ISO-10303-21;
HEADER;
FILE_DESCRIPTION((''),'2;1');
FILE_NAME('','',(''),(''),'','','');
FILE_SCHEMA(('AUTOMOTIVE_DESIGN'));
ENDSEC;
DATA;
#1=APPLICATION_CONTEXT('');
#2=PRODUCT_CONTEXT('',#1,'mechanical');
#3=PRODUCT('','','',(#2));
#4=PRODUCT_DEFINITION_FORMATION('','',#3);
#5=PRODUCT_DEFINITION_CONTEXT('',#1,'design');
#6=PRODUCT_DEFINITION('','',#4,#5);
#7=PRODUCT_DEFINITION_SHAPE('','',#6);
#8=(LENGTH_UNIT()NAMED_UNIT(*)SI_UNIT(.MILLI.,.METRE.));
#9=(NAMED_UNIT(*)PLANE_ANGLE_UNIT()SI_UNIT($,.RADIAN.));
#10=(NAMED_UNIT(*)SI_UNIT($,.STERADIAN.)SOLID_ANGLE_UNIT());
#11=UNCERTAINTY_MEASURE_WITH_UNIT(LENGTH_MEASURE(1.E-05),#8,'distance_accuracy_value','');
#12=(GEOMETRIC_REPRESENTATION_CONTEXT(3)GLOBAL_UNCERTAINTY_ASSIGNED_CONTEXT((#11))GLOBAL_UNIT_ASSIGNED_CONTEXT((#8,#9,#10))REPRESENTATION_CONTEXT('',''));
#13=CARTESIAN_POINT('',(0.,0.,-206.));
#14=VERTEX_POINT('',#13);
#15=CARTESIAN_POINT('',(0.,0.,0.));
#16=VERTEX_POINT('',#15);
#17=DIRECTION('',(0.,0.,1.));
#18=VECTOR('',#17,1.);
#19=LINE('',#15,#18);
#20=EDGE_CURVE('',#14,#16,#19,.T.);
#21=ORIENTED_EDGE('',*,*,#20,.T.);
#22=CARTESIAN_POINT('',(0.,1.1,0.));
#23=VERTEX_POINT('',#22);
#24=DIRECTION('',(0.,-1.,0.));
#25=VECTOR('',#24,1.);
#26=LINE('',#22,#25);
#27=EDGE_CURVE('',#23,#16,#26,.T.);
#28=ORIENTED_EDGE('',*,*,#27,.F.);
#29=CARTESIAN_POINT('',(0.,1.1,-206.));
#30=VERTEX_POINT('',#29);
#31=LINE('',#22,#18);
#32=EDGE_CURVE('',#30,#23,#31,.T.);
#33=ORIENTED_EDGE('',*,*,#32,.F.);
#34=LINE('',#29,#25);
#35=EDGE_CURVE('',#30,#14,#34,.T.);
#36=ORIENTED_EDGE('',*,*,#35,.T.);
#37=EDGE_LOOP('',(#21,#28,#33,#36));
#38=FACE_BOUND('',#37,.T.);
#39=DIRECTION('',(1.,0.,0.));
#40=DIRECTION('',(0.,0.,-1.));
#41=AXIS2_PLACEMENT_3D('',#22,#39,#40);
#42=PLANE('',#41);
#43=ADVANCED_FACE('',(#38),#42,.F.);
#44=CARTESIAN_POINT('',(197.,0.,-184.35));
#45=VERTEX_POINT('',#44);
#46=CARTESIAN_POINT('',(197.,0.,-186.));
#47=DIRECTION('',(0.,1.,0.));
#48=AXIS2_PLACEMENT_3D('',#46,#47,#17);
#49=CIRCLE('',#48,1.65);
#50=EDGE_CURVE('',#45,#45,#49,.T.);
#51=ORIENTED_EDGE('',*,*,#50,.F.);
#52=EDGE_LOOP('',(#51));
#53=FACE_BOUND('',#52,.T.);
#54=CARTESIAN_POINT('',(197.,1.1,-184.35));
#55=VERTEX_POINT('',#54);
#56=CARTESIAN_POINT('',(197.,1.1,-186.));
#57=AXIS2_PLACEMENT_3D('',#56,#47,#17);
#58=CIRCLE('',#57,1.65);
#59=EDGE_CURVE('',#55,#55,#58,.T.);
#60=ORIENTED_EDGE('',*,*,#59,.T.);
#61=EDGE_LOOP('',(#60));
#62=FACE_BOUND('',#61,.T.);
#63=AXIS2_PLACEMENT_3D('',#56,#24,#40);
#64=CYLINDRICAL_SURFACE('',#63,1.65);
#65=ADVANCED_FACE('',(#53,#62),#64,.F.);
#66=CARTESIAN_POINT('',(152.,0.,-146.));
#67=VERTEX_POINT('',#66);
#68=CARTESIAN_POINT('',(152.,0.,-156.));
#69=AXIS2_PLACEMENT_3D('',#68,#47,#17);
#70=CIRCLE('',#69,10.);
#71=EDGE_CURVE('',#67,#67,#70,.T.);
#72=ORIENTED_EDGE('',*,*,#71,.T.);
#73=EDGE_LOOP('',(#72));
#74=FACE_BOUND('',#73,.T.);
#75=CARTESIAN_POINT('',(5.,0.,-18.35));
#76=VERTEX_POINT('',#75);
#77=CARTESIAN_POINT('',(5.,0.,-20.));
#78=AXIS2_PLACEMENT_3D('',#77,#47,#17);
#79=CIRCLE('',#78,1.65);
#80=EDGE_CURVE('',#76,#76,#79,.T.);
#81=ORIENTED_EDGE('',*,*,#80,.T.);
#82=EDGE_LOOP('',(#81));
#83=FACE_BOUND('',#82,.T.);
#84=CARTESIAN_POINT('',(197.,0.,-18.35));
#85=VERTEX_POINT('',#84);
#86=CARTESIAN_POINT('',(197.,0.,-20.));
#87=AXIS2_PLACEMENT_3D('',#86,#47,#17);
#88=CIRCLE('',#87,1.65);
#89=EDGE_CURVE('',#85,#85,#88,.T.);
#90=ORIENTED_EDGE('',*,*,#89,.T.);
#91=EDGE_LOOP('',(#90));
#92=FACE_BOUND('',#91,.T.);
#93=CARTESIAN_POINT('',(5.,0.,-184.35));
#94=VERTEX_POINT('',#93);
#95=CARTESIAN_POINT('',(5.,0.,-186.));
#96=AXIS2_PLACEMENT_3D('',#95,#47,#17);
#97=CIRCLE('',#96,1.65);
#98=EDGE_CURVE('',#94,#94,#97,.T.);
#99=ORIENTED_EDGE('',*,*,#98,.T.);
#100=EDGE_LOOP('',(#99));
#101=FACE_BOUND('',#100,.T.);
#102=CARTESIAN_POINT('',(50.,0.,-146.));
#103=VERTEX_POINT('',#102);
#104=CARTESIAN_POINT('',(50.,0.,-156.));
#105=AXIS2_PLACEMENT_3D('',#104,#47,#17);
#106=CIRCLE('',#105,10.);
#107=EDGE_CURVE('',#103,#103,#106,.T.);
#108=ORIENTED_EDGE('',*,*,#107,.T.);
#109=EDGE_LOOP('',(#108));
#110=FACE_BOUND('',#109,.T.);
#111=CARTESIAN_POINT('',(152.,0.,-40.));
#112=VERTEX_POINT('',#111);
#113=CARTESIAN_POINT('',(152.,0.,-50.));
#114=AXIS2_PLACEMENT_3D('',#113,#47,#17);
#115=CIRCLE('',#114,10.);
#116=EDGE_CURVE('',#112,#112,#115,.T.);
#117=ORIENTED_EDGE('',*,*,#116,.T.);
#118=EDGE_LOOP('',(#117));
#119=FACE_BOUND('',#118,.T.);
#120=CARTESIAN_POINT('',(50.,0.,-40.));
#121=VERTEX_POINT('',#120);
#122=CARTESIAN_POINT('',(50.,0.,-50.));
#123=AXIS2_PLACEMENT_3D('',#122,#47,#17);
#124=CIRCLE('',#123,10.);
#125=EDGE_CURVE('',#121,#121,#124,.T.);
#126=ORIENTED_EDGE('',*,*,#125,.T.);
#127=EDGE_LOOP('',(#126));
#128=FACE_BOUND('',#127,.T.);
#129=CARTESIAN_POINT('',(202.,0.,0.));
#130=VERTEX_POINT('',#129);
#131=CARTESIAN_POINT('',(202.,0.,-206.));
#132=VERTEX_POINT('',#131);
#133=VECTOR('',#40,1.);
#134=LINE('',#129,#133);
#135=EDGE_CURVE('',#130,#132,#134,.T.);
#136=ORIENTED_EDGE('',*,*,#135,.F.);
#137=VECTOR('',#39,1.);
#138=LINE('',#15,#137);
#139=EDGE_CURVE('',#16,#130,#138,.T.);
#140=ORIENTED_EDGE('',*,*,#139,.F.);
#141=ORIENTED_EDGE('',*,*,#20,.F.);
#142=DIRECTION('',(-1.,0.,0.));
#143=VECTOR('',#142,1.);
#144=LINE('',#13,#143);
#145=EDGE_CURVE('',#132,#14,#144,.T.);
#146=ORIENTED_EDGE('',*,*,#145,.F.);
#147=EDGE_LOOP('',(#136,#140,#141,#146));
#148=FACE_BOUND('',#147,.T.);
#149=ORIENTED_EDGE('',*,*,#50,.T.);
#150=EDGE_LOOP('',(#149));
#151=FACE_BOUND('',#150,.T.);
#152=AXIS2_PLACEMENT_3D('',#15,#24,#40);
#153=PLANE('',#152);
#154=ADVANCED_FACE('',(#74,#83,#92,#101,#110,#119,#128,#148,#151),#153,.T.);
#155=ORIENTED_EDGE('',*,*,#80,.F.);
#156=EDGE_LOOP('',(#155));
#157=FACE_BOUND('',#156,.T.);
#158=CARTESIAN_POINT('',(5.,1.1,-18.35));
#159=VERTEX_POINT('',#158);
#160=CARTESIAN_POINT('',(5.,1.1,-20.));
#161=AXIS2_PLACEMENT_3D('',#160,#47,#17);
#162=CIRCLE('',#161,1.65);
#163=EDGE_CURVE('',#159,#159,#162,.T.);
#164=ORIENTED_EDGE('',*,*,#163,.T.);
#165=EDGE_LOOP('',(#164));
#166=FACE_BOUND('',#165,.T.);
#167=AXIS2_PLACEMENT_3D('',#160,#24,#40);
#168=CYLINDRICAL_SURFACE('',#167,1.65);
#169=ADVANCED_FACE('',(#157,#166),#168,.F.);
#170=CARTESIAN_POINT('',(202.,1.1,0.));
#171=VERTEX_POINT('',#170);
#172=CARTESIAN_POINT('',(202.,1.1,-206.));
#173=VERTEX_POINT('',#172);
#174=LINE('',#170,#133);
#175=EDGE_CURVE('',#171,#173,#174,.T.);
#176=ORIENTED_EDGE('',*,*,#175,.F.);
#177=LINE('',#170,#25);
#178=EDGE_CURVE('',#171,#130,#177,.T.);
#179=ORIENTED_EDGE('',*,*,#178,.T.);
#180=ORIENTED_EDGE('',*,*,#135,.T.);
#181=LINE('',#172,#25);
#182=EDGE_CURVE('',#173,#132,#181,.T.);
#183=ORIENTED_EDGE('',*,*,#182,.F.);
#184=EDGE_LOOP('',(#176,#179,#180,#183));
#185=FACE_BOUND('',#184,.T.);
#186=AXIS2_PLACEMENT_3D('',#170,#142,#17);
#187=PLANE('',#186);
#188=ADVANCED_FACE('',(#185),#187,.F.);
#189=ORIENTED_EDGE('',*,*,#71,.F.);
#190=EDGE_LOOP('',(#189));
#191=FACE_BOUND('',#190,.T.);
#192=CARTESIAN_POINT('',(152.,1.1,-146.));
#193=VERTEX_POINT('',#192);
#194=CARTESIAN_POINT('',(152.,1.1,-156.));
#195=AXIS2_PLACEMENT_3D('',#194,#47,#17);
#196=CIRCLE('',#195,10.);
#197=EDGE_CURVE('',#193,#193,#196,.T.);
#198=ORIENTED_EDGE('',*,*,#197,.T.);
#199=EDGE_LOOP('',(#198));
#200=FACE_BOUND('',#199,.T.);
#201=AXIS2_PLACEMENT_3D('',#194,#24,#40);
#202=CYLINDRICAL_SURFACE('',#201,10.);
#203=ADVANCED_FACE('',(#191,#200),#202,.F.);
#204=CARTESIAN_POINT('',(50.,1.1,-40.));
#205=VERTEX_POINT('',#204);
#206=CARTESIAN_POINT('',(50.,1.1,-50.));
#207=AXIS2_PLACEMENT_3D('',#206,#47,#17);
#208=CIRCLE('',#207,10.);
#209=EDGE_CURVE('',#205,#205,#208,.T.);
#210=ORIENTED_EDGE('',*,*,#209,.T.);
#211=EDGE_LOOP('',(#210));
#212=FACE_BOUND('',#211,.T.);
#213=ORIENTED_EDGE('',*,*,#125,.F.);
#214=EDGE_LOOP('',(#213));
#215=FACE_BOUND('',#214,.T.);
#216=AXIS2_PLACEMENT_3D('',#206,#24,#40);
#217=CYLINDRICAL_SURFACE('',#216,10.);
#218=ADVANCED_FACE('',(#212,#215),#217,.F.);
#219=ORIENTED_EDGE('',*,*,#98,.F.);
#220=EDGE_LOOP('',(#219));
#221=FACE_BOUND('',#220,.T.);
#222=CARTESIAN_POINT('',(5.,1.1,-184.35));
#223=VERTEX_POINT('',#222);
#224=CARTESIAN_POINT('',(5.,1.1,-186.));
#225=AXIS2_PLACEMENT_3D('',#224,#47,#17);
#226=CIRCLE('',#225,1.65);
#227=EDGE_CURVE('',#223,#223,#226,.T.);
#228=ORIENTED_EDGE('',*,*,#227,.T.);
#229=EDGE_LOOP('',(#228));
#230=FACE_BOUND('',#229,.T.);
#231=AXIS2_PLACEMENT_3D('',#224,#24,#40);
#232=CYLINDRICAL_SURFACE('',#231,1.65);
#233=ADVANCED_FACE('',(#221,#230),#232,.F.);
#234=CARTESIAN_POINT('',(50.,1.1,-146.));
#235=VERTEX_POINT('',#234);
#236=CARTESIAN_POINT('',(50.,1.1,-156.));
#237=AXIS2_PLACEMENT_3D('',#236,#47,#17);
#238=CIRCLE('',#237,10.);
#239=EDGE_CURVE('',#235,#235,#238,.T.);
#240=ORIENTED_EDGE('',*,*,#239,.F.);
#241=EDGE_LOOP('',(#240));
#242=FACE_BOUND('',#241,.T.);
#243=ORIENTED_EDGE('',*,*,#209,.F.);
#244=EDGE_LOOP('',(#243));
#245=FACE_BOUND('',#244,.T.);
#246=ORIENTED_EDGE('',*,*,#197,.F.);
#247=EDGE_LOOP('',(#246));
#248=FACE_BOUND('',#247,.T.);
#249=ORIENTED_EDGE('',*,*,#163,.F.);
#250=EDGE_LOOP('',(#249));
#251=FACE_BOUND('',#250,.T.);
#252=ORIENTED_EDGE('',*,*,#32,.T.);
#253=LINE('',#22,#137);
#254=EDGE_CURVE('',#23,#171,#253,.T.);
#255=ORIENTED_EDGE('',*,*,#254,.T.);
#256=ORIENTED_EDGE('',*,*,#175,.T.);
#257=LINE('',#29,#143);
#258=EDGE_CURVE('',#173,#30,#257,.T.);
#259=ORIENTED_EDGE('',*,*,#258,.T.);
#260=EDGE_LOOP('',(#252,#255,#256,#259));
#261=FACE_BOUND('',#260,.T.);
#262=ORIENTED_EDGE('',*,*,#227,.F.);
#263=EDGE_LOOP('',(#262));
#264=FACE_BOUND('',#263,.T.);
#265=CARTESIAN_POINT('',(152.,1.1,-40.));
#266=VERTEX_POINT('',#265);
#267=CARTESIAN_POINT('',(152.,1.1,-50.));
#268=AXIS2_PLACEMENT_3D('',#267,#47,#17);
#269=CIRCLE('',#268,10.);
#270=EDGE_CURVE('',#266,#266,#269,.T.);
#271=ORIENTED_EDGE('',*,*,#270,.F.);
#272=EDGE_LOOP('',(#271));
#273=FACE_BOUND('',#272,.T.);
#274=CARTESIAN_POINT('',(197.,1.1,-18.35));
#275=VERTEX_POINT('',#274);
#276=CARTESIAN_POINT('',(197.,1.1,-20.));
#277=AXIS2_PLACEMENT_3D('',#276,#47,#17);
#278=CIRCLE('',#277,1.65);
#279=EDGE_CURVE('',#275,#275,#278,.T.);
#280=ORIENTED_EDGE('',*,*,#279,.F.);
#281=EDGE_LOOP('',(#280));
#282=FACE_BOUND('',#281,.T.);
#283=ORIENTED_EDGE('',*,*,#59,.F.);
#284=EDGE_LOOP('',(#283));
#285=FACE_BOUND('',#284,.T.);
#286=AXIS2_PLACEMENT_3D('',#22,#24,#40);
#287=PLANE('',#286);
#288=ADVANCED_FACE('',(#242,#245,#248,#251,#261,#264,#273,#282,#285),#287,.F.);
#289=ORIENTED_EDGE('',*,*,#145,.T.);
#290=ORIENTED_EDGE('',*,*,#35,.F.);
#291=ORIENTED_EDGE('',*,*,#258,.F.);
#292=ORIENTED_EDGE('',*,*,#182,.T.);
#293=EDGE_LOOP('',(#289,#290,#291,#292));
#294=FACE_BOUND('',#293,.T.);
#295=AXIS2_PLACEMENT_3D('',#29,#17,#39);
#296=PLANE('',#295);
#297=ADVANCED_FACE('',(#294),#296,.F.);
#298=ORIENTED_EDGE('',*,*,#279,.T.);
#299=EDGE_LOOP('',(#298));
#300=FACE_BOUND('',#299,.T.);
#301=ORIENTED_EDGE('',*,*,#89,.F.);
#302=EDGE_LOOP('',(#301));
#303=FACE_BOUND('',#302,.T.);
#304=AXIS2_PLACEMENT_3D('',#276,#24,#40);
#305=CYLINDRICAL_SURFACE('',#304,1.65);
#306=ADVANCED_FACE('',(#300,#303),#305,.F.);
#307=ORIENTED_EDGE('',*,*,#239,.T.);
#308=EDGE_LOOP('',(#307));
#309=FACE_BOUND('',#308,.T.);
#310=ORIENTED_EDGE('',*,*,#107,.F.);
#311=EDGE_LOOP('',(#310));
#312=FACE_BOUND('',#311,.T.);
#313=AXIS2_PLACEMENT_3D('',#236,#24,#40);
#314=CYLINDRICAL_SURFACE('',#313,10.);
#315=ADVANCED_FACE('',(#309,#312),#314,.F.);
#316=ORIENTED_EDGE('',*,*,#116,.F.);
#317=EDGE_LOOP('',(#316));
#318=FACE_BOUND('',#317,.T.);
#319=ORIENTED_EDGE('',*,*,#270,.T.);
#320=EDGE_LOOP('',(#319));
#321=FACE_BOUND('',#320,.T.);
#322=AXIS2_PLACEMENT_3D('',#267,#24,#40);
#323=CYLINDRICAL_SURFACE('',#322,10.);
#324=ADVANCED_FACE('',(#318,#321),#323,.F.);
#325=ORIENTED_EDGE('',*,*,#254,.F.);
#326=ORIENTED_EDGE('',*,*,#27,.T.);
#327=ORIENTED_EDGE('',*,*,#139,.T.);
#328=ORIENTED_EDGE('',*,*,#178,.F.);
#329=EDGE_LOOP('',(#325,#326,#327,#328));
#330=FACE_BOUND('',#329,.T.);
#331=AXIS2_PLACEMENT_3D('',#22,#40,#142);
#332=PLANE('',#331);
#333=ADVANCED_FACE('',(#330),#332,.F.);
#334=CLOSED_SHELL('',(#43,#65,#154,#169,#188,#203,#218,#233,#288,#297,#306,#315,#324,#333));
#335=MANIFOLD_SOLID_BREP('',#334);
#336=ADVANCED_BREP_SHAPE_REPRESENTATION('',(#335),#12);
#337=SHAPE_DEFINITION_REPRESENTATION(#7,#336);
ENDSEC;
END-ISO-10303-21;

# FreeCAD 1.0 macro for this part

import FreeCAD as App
import Part
import Sketcher


def add_polygon(sketch, points):
    """Adds a closed chain of lines whose ends are joined by coincident constraints."""
    first, n = sketch.GeometryCount, len(points)
    for a, b in zip(points, points[1:] + points[:1]):
        sketch.addGeometry(Part.LineSegment(App.Vector(*a, 0), App.Vector(*b, 0)), False)
    for i in range(n):
        sketch.addConstraint(Sketcher.Constraint("Coincident", first + i, 2, first + (i + 1) % n, 1))

doc = App.newDocument("Part")
params = doc.addObject("Spreadsheet::Sheet", "Params")
for row, (alias, value) in enumerate([
    ("sketch1_diameter", "20 mm"),
    ("sketch1_diameter2", "3.3 mm"),
    ("sketch1_width", "202 mm"),
    ("sketch1_height", "206 mm"),
    ("pad1_length", "1.1 mm"),
], start=1):
    params.set(f"A{row}", alias)
    params.set(f"B{row}", "=" + value)
    params.setAlias(f"B{row}", alias)

body = doc.addObject("PartDesign::Body", "Body")

# Sketch on XZ plane
sketch1 = doc.addObject("Sketcher::SketchObject", "Sketch")
body.addObject(sketch1)
sketch1.AttachmentSupport = (doc.XZ_Plane, [""])
sketch1.MapMode = "FlatFace"
add_polygon(sketch1, [(0, -206), (0, 0), (202, 0), (202, -206)])  # lines 0-3
sketch1.addGeometry(Part.Circle(App.Vector(5, -20, 0), App.Vector(0, 0, 1), 1.6), False)  # 4
sketch1.addGeometry(Part.Circle(App.Vector(50, -50, 0), App.Vector(0, 0, 1), 10), False)  # 5
sketch1.addGeometry(Part.Circle(App.Vector(197, -20, 0), App.Vector(0, 0, 1), 1.6), False)  # 6
sketch1.addGeometry(Part.Circle(App.Vector(152, -50, 0), App.Vector(0, 0, 1), 10), False)  # 7
sketch1.addGeometry(Part.Circle(App.Vector(50, -156, 0), App.Vector(0, 0, 1), 10), False)  # 8
sketch1.addGeometry(Part.Circle(App.Vector(5, -186, 0), App.Vector(0, 0, 1), 1.6), False)  # 9
sketch1.addGeometry(Part.Circle(App.Vector(152, -156, 0), App.Vector(0, 0, 1), 10), False)  # 10
sketch1.addGeometry(Part.Circle(App.Vector(197, -186, 0), App.Vector(0, 0, 1), 1.6), False)  # 11
sketch1.addConstraint([
    Sketcher.Constraint("Vertical", 0),
    Sketcher.Constraint("Horizontal", 1),
    Sketcher.Constraint("Vertical", 2),
    Sketcher.Constraint("Horizontal", 3),
    Sketcher.Constraint("Coincident", 0, 2, -1, 1),
    Sketcher.Constraint("Equal", 4, 6),
    Sketcher.Constraint("Equal", 5, 7),
    Sketcher.Constraint("Equal", 7, 8),
    Sketcher.Constraint("Equal", 6, 9),
    Sketcher.Constraint("Equal", 8, 10),
    Sketcher.Constraint("Equal", 9, 11),
    Sketcher.Constraint("Horizontal", 4, 3, 6, 3),
    Sketcher.Constraint("Horizontal", 5, 3, 7, 3),
    Sketcher.Constraint("Horizontal", 8, 3, 10, 3),
    Sketcher.Constraint("Horizontal", 9, 3, 11, 3),
    Sketcher.Constraint("Vertical", 5, 3, 8, 3),
    Sketcher.Constraint("Vertical", 4, 3, 9, 3),
    Sketcher.Constraint("Vertical", 7, 3, 10, 3),
    Sketcher.Constraint("Vertical", 6, 3, 11, 3),
    Sketcher.Constraint("Diameter", 5, 20.0),
    Sketcher.Constraint("Diameter", 4, 3.3),
    Sketcher.Constraint("DistanceX", 1, 1, 1, 2, 202.0),
    Sketcher.Constraint("DistanceY", 0, 1, 0, 2, 206.0),
    Sketcher.Constraint("DistanceX", -1, 1, 4, 3, 5.0),
    Sketcher.Constraint("DistanceY", 4, 3, -1, 1, 20.0),
    Sketcher.Constraint("DistanceX", -1, 1, 5, 3, 50.0),
    Sketcher.Constraint("DistanceY", 5, 3, -1, 1, 50.0),
    Sketcher.Constraint("DistanceX", -1, 1, 6, 3, 197.0),
    Sketcher.Constraint("DistanceX", -1, 1, 7, 3, 152.0),
    Sketcher.Constraint("DistanceY", 8, 3, -1, 1, 156.0),
    Sketcher.Constraint("DistanceY", 9, 3, -1, 1, 186.0),
])
sketch1.setExpression("Constraints[23]", "Params.sketch1_diameter")
sketch1.setExpression("Constraints[24]", "Params.sketch1_diameter2")
sketch1.setExpression("Constraints[25]", "Params.sketch1_width")
sketch1.setExpression("Constraints[26]", "Params.sketch1_height")
pad1 = doc.addObject("PartDesign::Pad", "Pad")
body.addObject(pad1)
pad1.Profile = sketch1
pad1.setExpression("Length", "Params.pad1_length")
pad1.Reversed = True

doc.recompute()
